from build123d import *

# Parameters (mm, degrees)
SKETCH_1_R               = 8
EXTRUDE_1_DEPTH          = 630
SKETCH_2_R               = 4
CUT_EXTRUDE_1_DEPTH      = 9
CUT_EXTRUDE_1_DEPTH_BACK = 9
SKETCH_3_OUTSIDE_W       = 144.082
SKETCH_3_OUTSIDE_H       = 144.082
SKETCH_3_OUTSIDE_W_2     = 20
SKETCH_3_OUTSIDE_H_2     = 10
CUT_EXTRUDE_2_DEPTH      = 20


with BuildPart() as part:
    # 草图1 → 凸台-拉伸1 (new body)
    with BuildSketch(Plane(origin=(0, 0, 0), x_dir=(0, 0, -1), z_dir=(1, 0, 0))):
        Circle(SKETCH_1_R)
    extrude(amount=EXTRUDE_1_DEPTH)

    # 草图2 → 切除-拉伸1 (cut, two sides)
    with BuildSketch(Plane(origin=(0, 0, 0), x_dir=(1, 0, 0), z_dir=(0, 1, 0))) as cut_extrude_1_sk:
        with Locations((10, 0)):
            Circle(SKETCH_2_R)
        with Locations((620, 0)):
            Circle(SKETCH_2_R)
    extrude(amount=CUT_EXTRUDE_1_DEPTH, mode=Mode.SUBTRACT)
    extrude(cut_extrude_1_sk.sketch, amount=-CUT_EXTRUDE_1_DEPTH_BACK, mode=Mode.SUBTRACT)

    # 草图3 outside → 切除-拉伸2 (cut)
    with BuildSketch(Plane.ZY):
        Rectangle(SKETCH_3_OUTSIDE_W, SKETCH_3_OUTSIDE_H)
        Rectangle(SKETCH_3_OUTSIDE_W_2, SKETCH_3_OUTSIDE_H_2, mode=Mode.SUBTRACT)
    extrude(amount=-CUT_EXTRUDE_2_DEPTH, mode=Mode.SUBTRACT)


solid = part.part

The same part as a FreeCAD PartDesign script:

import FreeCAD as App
import Part
import Sketcher
from FreeCAD import Vector
Q = App.Units.Quantity

doc = App.newDocument("Part")
body = doc.addObject("PartDesign::Body", "Body")

# Sketch on YZ plane
sketch1 = body.newObject("Sketcher::SketchObject", "Sketch")
sketch1.AttachmentSupport = (doc.getObject("YZ_Plane"), [""])
sketch1.MapMode = "FlatFace"
sketch1.addGeometry(Part.Circle(Vector(0, 0, 0), Vector(0, 0, 1), 8), False)
sketch1.addConstraint([
    Sketcher.Constraint("Coincident", 0, 3, -1, 1),
    Sketcher.Constraint("Diameter", 0, Q("16 mm")),
])
pad1 = body.newObject("PartDesign::Pad", "Pad")
pad1.Profile = sketch1
pad1.Length = 630

# Sketch on XZ plane
sketch2 = body.newObject("Sketcher::SketchObject", "Sketch001")
sketch2.AttachmentSupport = (doc.getObject("XZ_Plane"), [""])
sketch2.MapMode = "FlatFace"
sketch2.addGeometry([
    Part.Circle(Vector(10, 0, 0), Vector(0, 0, 1), 4),
    Part.Circle(Vector(620, 0, 0), Vector(0, 0, 1), 4),
], False)
sketch2.addConstraint([
    Sketcher.Constraint("Equal", 0, 1),
    Sketcher.Constraint("PointOnObject", 0, 3, -1),
    Sketcher.Constraint("PointOnObject", 1, 3, -1),
    Sketcher.Constraint("Diameter", 0, Q("8 mm")),
    Sketcher.Constraint("DistanceX", -1, 1, 0, 3, Q("10 mm")),
    Sketcher.Constraint("DistanceX", -1, 1, 1, 3, Q("620 mm")),
])
pocket1 = body.newObject("PartDesign::Pocket", "Pocket")
pocket1.Profile = sketch2
pocket1.Type = "ThroughAll"
pocket1.Midplane = True

# Sketch on YZ plane
sketch3 = body.newObject("Sketcher::SketchObject", "Sketch002")
sketch3.AttachmentSupport = (doc.getObject("YZ_Plane"), [""])
sketch3.MapMode = "FlatFace"
sketch3.addGeometry([
    Part.LineSegment(Vector(72, -72, 0), Vector(-72, -72, 0)),  # 0
    Part.LineSegment(Vector(-72, -72, 0), Vector(-72, 72, 0)),  # 1
    Part.LineSegment(Vector(-72, 72, 0), Vector(72, 72, 0)),  # 2
    Part.LineSegment(Vector(72, 72, 0), Vector(72, -72, 0)),  # 3
    Part.LineSegment(Vector(-5, 10, 0), Vector(-5, -10, 0)),  # 4
    Part.LineSegment(Vector(-5, -10, 0), Vector(5, -10, 0)),  # 5
    Part.LineSegment(Vector(5, -10, 0), Vector(5, 10, 0)),  # 6
    Part.LineSegment(Vector(5, 10, 0), Vector(-5, 10, 0)),  # 7
], False)
sketch3.addConstraint([
    Sketcher.Constraint("Coincident", 0, 2, 1, 1),
    Sketcher.Constraint("Coincident", 1, 2, 2, 1),
    Sketcher.Constraint("Coincident", 2, 2, 3, 1),
    Sketcher.Constraint("Coincident", 3, 2, 0, 1),
    Sketcher.Constraint("Coincident", 4, 2, 5, 1),
    Sketcher.Constraint("Coincident", 5, 2, 6, 1),
    Sketcher.Constraint("Coincident", 6, 2, 7, 1),
    Sketcher.Constraint("Coincident", 7, 2, 4, 1),
    Sketcher.Constraint("Horizontal", 0),
    Sketcher.Constraint("Vertical", 1),
    Sketcher.Constraint("Horizontal", 2),
    Sketcher.Constraint("Vertical", 3),
    Sketcher.Constraint("Vertical", 4),
    Sketcher.Constraint("Horizontal", 5),
    Sketcher.Constraint("Vertical", 6),
    Sketcher.Constraint("Horizontal", 7),
    Sketcher.Constraint("Symmetric", 0, 2, 2, 2, -1, 1),
    Sketcher.Constraint("Symmetric", 4, 2, 6, 2, -1, 1),
    Sketcher.Constraint("Equal", 2, 1),
    Sketcher.Constraint("DistanceX", 5, 1, 5, 2, Q("10 mm")),
    Sketcher.Constraint("DistanceY", 4, 2, 4, 1, Q("20 mm")),
    Sketcher.Constraint("DistanceX", 0, 2, 0, 1, Q("144.082 mm")),
])
pocket2 = body.newObject("PartDesign::Pocket", "Pocket001")
pocket2.Profile = sketch3
pocket2.Length = 20
pocket2.Reversed = True

doc.recompute()
